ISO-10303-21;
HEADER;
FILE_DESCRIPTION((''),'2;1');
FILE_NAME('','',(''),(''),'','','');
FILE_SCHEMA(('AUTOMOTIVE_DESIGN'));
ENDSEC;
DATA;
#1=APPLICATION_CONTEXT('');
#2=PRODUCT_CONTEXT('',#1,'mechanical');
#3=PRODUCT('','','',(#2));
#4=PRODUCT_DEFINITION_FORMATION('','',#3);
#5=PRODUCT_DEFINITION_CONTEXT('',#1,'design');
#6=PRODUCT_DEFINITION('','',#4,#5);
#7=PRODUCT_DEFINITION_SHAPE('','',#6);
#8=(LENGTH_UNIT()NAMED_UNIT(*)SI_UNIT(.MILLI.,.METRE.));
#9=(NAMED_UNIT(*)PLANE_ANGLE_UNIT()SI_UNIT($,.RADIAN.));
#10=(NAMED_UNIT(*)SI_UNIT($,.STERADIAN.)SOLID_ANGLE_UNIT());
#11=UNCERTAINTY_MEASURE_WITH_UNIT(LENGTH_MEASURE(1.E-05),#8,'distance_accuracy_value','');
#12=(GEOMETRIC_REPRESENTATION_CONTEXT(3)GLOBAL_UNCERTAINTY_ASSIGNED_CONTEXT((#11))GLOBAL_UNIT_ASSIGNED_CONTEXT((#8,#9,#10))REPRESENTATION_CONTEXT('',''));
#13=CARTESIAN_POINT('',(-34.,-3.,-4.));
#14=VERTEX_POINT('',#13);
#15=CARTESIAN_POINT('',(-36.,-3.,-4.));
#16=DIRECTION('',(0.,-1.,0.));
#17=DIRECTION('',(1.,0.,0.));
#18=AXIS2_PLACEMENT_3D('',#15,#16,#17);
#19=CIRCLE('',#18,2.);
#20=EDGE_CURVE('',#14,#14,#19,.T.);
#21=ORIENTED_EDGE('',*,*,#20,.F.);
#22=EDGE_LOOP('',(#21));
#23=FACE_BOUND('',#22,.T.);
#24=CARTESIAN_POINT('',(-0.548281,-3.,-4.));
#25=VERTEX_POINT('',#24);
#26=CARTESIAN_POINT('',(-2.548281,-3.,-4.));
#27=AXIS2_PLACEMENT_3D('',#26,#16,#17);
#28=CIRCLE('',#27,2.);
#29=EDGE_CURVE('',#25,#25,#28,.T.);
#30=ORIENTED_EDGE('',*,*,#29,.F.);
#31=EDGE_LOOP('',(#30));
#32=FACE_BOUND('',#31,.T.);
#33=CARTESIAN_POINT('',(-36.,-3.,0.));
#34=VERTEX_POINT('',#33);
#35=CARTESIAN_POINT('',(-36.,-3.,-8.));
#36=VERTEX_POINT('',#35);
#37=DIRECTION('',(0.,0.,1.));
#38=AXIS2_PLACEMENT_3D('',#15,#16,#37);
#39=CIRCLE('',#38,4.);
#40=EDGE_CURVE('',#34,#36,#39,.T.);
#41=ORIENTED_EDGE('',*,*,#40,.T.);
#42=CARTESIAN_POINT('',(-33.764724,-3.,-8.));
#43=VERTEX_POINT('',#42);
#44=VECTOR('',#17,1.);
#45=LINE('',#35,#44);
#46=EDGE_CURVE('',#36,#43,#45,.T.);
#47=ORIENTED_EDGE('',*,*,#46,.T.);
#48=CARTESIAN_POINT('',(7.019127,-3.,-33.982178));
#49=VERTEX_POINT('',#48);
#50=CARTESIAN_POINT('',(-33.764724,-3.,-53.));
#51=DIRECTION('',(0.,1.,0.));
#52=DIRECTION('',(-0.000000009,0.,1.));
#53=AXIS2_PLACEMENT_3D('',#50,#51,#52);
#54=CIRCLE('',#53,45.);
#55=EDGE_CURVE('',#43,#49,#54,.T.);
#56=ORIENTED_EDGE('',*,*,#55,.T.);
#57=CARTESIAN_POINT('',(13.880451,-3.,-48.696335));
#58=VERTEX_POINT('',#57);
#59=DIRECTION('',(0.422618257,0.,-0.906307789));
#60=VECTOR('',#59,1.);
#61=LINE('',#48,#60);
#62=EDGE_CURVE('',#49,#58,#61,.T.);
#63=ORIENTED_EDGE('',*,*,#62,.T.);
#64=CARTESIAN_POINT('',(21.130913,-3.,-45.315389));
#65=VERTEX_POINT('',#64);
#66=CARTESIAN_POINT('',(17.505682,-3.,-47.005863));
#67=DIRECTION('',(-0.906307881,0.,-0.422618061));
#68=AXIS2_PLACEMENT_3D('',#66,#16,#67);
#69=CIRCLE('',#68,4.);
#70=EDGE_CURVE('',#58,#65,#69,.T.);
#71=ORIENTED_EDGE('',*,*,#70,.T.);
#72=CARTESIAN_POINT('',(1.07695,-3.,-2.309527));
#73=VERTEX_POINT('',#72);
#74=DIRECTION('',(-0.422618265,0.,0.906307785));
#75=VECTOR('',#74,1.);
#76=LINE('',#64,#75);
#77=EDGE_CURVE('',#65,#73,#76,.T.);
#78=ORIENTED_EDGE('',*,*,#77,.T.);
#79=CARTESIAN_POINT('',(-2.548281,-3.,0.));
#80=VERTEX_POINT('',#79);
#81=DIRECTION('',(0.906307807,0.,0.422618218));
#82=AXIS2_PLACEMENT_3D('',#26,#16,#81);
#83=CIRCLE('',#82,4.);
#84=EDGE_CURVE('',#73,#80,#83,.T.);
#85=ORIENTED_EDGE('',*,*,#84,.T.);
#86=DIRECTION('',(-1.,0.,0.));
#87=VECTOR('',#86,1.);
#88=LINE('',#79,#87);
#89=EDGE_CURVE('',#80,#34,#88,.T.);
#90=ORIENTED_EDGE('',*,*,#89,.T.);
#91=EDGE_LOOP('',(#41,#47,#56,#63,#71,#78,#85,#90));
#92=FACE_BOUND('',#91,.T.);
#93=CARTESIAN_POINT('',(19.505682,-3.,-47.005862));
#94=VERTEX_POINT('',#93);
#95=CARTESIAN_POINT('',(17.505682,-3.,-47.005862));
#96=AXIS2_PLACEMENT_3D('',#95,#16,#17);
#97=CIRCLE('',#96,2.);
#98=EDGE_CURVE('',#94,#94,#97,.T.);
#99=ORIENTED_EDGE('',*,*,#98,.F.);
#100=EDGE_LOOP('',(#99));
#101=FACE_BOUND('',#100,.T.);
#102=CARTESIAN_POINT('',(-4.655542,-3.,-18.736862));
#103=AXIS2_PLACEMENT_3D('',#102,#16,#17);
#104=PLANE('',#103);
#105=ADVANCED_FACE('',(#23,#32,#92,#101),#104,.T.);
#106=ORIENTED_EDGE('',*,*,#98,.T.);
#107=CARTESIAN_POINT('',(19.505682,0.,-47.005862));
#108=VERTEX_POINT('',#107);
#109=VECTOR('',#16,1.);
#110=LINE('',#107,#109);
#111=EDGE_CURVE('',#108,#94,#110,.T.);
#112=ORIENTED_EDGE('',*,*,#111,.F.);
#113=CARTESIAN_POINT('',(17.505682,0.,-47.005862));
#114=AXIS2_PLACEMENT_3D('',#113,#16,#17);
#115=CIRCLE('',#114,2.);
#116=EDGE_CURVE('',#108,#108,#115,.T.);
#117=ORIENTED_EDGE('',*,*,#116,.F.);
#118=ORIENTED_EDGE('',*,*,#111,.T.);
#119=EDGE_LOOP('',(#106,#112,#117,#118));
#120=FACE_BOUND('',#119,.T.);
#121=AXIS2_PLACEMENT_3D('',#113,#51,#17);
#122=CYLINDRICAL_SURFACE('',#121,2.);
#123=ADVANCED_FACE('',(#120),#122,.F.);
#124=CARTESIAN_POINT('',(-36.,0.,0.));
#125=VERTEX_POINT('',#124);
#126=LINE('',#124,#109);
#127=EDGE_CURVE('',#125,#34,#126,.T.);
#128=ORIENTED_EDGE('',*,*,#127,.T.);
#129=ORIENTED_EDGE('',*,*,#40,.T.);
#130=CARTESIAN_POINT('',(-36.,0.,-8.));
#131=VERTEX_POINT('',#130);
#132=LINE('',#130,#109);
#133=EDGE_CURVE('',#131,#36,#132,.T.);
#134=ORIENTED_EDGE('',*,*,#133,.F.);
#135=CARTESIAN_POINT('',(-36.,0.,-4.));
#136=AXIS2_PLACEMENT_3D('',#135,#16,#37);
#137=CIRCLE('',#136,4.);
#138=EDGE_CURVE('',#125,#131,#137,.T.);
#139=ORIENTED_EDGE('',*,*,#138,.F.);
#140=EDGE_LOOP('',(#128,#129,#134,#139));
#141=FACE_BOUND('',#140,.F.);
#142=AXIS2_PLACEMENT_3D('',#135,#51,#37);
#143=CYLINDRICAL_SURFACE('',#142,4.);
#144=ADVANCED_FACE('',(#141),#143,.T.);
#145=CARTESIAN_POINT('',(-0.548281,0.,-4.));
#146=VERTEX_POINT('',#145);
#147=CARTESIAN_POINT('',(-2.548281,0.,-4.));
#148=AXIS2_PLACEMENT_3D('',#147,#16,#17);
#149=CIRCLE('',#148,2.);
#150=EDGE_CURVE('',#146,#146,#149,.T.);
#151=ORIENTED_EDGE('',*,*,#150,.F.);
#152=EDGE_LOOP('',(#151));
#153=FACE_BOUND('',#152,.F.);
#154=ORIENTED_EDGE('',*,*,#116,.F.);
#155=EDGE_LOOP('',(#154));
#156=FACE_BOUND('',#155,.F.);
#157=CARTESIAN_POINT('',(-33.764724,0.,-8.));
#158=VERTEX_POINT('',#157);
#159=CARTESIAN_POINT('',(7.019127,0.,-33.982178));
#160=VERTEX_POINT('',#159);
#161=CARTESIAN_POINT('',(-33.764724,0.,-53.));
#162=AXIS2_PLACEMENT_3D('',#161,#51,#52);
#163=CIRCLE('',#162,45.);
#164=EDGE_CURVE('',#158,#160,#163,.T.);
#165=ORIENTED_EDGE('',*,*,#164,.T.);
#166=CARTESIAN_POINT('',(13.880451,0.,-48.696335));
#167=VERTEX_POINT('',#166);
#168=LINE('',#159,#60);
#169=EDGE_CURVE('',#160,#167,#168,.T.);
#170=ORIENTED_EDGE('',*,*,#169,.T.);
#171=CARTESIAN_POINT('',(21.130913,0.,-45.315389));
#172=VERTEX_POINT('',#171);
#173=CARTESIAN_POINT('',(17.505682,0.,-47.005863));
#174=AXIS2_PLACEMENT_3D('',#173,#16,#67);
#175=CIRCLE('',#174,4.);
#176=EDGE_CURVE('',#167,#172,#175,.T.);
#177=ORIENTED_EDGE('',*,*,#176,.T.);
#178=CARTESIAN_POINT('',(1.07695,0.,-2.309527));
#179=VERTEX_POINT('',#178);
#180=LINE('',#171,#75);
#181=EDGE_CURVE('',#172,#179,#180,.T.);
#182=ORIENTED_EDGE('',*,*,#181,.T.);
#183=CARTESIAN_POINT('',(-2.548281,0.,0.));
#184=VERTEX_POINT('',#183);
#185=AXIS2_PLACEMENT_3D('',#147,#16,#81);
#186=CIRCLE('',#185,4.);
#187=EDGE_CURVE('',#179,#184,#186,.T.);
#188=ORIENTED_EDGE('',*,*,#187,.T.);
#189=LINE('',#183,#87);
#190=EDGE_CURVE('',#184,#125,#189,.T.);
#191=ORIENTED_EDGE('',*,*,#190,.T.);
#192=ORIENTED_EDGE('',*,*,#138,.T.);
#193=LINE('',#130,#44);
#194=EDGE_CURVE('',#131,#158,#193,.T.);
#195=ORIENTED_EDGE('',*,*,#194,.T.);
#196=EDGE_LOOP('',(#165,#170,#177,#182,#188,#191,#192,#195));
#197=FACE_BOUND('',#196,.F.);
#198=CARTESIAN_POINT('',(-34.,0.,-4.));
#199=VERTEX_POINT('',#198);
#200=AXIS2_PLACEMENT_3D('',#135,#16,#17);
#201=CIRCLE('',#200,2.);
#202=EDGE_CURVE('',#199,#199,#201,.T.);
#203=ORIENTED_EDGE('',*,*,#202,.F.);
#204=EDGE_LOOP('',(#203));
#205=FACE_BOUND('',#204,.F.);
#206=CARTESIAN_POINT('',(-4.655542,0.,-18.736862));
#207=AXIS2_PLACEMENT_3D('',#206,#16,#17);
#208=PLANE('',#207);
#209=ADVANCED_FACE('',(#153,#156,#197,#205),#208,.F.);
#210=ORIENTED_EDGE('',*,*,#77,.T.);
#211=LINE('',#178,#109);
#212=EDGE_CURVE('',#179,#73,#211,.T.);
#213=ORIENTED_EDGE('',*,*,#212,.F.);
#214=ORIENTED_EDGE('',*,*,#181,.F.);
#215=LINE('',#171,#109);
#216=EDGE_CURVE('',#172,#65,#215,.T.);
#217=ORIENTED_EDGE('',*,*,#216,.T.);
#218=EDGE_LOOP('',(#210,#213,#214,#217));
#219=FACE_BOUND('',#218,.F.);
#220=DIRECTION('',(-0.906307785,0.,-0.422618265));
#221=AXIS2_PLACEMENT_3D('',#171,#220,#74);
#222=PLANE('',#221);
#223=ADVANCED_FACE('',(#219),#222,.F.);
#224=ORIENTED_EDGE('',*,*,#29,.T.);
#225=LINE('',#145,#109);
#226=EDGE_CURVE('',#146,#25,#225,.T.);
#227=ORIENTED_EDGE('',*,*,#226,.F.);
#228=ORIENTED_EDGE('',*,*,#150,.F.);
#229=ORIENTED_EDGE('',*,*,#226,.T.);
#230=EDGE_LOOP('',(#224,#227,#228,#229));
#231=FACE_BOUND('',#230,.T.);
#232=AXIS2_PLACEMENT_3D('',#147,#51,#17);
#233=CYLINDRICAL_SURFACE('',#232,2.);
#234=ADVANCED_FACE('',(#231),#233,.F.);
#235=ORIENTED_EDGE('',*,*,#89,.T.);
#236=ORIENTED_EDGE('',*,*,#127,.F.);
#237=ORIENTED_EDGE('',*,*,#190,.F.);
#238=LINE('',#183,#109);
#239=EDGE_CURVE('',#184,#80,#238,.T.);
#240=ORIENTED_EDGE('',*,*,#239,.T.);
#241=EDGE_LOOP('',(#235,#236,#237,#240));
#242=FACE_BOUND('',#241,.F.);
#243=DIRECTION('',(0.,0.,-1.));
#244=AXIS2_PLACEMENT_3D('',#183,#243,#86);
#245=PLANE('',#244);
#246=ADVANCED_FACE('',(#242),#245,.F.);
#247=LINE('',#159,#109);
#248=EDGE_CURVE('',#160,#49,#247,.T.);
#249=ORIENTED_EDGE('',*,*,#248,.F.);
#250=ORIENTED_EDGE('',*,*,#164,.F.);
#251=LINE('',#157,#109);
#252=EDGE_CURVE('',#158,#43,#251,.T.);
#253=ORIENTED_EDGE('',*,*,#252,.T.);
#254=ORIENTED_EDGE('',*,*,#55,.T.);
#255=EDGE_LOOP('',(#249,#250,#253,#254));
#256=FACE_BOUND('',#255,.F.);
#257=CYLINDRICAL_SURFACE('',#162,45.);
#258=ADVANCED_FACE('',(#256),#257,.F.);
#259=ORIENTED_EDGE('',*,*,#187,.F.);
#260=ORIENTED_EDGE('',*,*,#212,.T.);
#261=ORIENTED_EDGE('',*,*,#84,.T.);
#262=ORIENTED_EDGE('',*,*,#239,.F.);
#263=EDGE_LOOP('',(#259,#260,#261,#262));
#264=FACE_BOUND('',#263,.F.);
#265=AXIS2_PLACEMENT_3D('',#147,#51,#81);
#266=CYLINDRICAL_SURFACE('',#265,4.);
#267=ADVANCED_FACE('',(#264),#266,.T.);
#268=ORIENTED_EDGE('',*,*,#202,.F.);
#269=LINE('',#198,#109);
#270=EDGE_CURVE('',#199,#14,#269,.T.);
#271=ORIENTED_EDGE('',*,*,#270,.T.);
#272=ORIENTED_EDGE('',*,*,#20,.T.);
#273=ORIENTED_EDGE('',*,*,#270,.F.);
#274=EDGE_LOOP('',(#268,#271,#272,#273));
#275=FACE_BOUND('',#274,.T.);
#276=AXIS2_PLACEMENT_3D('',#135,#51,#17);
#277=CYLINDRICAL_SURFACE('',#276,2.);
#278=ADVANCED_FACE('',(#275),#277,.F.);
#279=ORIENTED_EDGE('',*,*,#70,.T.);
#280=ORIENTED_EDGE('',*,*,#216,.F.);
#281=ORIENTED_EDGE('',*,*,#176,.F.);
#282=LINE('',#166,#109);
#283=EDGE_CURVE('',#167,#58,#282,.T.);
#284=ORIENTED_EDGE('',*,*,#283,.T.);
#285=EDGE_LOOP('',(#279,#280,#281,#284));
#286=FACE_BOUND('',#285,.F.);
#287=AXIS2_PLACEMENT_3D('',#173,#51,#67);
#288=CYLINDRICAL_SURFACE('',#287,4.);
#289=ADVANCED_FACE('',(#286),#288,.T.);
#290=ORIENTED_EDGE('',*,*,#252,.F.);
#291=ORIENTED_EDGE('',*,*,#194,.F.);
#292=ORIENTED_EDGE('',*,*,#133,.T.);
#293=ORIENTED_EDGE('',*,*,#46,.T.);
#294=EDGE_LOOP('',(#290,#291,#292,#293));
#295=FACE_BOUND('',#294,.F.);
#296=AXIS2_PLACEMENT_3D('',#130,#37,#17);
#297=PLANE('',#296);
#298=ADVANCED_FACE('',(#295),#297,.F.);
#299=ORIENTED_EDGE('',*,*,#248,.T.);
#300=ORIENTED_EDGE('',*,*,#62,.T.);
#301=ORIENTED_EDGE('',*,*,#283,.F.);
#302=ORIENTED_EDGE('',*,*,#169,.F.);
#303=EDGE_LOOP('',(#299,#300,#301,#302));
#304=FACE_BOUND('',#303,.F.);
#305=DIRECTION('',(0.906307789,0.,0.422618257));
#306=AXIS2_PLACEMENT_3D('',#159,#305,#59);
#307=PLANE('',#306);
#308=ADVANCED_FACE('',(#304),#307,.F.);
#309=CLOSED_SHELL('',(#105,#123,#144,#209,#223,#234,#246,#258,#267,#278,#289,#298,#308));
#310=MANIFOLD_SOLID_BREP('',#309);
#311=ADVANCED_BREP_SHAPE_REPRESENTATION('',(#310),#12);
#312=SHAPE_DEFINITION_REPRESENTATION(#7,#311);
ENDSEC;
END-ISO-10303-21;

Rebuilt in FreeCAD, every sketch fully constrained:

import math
import FreeCAD as App
import Part
import Sketcher
from FreeCAD import Vector
Q = App.Units.Quantity

doc = App.newDocument("Part")
body = doc.addObject("PartDesign::Body", "Body")

# Sketch on XZ plane
sketch1 = body.newObject("Sketcher::SketchObject", "Sketch")
sketch1.AttachmentSupport = (doc.getObject("XZ_Plane"), [""])
sketch1.MapMode = "FlatFace"
sketch1.addGeometry([
    Part.ArcOfCircle(Part.Circle(Vector(-2.548281, -4, 0), Vector(0, 0, 1), 4), math.radians(24.999997), math.radians(90)),  # 0
    Part.LineSegment(Vector(-2.548281, 0, 0), Vector(-36, 0, 0)),  # 1
    Part.ArcOfCircle(Part.Circle(Vector(-36, -4, 0), Vector(0, 0, 1), 4), math.radians(90), math.radians(270)),  # 2
    Part.LineSegment(Vector(-36, -8, 0), Vector(-33.764724, -8, 0)),  # 3
    Part.ArcOfCircle(Part.Circle(Vector(-33.764724, -53, 0), Vector(0, 0, 1), 45), math.radians(25.000001), math.radians(90.000001)),  # 4
    Part.LineSegment(Vector(7.019127, -33.982178, 0), Vector(13.880451, -48.696335, 0)),  # 5
    Part.ArcOfCircle(Part.Circle(Vector(17.505682, -47.005863, 0), Vector(0, 0, 1), 4), math.radians(-155.000013), math.radians(25.000013)),  # 6
    Part.LineSegment(Vector(21.130913, -45.315389, 0), Vector(1.07695, -2.309527, 0)),  # 7
    Part.Circle(Vector(17.505682, -47.005862, 0), Vector(0, 0, 1), 2),  # 8
    Part.Circle(Vector(-36, -4, 0), Vector(0, 0, 1), 2),  # 9
    Part.Circle(Vector(-2.548281, -4, 0), Vector(0, 0, 1), 2),  # 10
], False)
sketch1.addConstraint([
    Sketcher.Constraint("Tangent", 0, 2, 1, 1),
    Sketcher.Constraint("Tangent", 1, 2, 2, 1),
    Sketcher.Constraint("Tangent", 2, 2, 3, 1),
    Sketcher.Constraint("Tangent", 3, 2, 4, 2),
    Sketcher.Constraint("Tangent", 4, 1, 5, 1),
    Sketcher.Constraint("Tangent", 5, 2, 6, 1),
    Sketcher.Constraint("Tangent", 6, 2, 7, 1),
    Sketcher.Constraint("Tangent", 7, 2, 0, 1),
    Sketcher.Constraint("Horizontal", 1),
    Sketcher.Constraint("Horizontal", 3),
    Sketcher.Constraint("Coincident", 8, 3, 6, 3),
    Sketcher.Constraint("Coincident", 9, 3, 2, 3),
    Sketcher.Constraint("Coincident", 10, 3, 0, 3),
    Sketcher.Constraint("Equal", 0, 2),
    Sketcher.Constraint("Equal", 2, 6),
    Sketcher.Constraint("Equal", 8, 9),
    Sketcher.Constraint("Equal", 9, 10),
    Sketcher.Constraint("PointOnObject", 0, 2, -1),
    Sketcher.Constraint("Parallel", 5, 7),
    Sketcher.Constraint("Diameter", 8, 4.0),
    Sketcher.Constraint("Radius", 0, 4.0),
    Sketcher.Constraint("Radius", 4, 45.0),
    Sketcher.Constraint("Angle", 5, Q("-65 deg")),
    Sketcher.Constraint("DistanceX", 2, 3, -1, 1, 36.0),
    Sketcher.Constraint("DistanceX", 1, 2, 1, 1, 33.451719),
    Sketcher.Constraint("Distance", 7, 47.451719),
])
pad1 = body.newObject("PartDesign::Pad", "Pad")
pad1.Profile = sketch1
pad1.Length = 3

doc.recompute()
